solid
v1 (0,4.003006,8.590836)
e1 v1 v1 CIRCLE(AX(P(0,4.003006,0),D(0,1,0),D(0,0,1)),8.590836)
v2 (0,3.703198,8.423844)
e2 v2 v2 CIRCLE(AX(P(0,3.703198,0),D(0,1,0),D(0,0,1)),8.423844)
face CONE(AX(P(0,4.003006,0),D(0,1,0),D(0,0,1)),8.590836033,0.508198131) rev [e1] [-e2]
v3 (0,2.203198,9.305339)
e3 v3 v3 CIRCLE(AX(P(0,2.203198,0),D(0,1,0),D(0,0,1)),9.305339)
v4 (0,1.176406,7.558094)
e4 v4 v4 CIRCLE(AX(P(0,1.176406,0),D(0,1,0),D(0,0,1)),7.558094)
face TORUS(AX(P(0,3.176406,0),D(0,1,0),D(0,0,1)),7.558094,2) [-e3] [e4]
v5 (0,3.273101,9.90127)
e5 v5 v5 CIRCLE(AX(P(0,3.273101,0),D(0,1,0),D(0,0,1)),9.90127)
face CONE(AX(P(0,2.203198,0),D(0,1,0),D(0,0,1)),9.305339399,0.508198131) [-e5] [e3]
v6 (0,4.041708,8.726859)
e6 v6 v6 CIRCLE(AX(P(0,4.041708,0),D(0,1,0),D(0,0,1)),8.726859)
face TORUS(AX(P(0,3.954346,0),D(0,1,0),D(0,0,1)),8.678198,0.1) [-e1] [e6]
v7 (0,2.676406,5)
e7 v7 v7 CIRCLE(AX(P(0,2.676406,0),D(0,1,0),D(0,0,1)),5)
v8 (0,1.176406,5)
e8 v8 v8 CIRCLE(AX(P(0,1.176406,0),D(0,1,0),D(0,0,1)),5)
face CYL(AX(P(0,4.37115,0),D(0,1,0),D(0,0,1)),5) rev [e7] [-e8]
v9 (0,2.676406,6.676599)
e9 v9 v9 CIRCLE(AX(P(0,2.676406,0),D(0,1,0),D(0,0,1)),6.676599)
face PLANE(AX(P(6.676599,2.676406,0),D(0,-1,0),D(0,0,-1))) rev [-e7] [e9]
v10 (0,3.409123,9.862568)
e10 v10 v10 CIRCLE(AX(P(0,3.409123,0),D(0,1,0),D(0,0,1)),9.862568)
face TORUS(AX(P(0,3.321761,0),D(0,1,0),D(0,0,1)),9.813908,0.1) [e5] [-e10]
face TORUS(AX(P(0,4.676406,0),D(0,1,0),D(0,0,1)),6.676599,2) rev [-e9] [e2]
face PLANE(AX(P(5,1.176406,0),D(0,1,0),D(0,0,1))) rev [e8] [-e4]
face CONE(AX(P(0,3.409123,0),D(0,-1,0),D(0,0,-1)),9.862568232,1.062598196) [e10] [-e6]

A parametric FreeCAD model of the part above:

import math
import FreeCAD as App
import Part
import Sketcher

doc = App.newDocument("Part")
params = doc.addObject("Spreadsheet::Sheet", "Params")
for row, (alias, value) in enumerate([
    ("sketch1_radius", "2 mm"),
    ("sketch1_radius2", "0.1 mm"),
    ("sketch1_height", "1.5 mm"),
    ("sketch1_length", "1.3 mm"),
    ("revolution_angle", "360 deg"),
], start=1):
    params.set(f"A{row}", alias)
    params.set(f"B{row}", "=" + value)
    params.setAlias(f"B{row}", alias)

body = doc.addObject("PartDesign::Body", "Body")

sketch1 = body.newObject("Sketcher::SketchObject", "Sketch")
sketch1.AttachmentSupport = (doc.getObject("XY_Plane"), [""])
sketch1.MapMode = "FlatFace"
sketch1.addGeometry([
    Part.LineSegment(App.Vector(5, 1.176406, 0), App.Vector(7.558094, 1.176406, 0)),
    Part.ArcOfCircle(Part.Circle(App.Vector(7.558094, 3.176406, 0), App.Vector(0, 0, 1), 2), math.radians(-90), math.radians(-29.117608)),
    Part.LineSegment(App.Vector(9.305339, 2.203198, 0), App.Vector(9.90127, 3.273101, 0)),
    Part.ArcOfCircle(Part.Circle(App.Vector(9.813908, 3.321761, 0), App.Vector(0, 0, 1), 0.1), math.radians(-29.117607), math.radians(60.882391)),
    Part.LineSegment(App.Vector(9.862568, 3.409123, 0), App.Vector(8.726859, 4.041708, 0)),
    Part.ArcOfCircle(Part.Circle(App.Vector(8.678198, 3.954346, 0), App.Vector(0, 0, 1), 0.1), math.radians(60.882392), math.radians(150.882392)),
    Part.LineSegment(App.Vector(8.590836, 4.003006, 0), App.Vector(8.423844, 3.703198, 0)),
    Part.ArcOfCircle(Part.Circle(App.Vector(6.676599, 4.676406, 0), App.Vector(0, 0, 1), 2), math.radians(-90), math.radians(-29.117608)),
    Part.LineSegment(App.Vector(6.676599, 2.676406, 0), App.Vector(5, 2.676406, 0)),
    Part.LineSegment(App.Vector(5, 2.676406, 0), App.Vector(5, 1.176406, 0)),
], False)
sketch1.addConstraint([
    Sketcher.Constraint("Tangent", 0, 2, 1, 1),
    Sketcher.Constraint("Tangent", 1, 2, 2, 1),
    Sketcher.Constraint("Tangent", 2, 2, 3, 1),
    Sketcher.Constraint("Tangent", 3, 2, 4, 1),
    Sketcher.Constraint("Tangent", 4, 2, 5, 1),
    Sketcher.Constraint("Tangent", 5, 2, 6, 1),
    Sketcher.Constraint("Tangent", 6, 2, 7, 2),
    Sketcher.Constraint("Tangent", 7, 1, 8, 1),
    Sketcher.Constraint("Coincident", 8, 2, 9, 1),
    Sketcher.Constraint("Coincident", 9, 2, 0, 1),
    Sketcher.Constraint("Horizontal", 0),
    Sketcher.Constraint("Horizontal", 8),
    Sketcher.Constraint("Vertical", 9),
    Sketcher.Constraint("Equal", 3, 5),
    Sketcher.Constraint("Equal", 1, 7),
    Sketcher.Constraint("Perpendicular", 2, 4),
    Sketcher.Constraint("Perpendicular", 4, 6),
    Sketcher.Constraint("Radius", 1, 2.0),
    Sketcher.Constraint("Radius", 3, 0.1),
    Sketcher.Constraint("DistanceY", 9, 2, 9, 1, 1.5),
    Sketcher.Constraint("DistanceX", -1, 1, 8, 2, 5.0),
    Sketcher.Constraint("Distance", 4, 1.3),
    Sketcher.Constraint("DistanceX", 8, 2, 8, 1, 1.676599),
    Sketcher.Constraint("DistanceX", -1, 1, 5, 3, 8.678198),
    Sketcher.Constraint("DistanceY", -1, 1, 1, 2, 2.203198),
    Sketcher.Constraint("DistanceY", -1, 1, 2, 2, 3.273101),
])
sketch1.setExpression("Constraints[17]", "Params.sketch1_radius")
sketch1.setExpression("Constraints[18]", "Params.sketch1_radius2")
sketch1.setExpression("Constraints[19]", "Params.sketch1_height")
sketch1.setExpression("Constraints[21]", "Params.sketch1_length")
revolution = body.newObject("PartDesign::Revolution", "Revolution")
revolution.Profile = sketch1
revolution.ReferenceAxis = (sketch1, ["V_Axis"])
revolution.setExpression("Angle", "Params.revolution_angle")

doc.recompute()
